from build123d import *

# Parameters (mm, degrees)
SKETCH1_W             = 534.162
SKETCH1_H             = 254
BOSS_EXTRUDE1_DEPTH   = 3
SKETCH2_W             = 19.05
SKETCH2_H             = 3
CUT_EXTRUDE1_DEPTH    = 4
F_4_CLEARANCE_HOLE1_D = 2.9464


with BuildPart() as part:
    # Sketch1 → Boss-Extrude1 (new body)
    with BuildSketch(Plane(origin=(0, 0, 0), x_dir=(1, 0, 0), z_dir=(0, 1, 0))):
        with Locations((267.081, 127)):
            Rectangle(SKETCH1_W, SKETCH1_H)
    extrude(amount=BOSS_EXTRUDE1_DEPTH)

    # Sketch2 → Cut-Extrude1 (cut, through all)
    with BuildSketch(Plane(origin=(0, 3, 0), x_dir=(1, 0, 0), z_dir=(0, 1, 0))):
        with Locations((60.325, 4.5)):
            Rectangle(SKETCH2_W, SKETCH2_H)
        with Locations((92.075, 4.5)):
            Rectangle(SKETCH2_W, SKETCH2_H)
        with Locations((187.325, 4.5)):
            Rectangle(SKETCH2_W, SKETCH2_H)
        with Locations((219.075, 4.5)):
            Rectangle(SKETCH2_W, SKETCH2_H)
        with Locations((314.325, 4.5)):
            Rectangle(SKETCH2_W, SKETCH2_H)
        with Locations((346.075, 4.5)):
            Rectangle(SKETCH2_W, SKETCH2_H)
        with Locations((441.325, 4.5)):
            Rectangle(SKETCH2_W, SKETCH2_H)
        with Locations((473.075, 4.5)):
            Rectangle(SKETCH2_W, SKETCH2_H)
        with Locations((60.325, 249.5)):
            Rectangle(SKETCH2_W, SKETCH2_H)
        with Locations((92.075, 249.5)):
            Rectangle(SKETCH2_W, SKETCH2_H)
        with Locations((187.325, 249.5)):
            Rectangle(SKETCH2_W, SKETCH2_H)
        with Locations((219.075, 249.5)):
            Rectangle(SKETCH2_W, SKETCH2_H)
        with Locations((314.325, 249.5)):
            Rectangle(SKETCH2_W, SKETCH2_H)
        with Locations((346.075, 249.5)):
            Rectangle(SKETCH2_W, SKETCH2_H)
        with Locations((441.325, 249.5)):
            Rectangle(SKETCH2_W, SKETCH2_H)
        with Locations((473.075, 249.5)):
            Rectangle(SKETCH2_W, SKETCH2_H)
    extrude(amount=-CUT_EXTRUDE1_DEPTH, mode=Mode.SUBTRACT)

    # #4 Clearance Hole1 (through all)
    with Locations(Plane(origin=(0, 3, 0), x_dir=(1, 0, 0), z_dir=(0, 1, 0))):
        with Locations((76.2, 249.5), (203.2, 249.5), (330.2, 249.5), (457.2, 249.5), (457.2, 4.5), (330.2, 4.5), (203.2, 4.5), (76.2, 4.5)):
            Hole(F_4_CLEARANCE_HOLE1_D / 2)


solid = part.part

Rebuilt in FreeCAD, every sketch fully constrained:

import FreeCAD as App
import Part
import Sketcher

V = App.Vector
Q = App.Units.Quantity


def add_polygon(sketch, points):
    """Adds a closed chain of lines whose ends are joined by coincident constraints."""
    first, n = sketch.GeometryCount, len(points)
    for a, b in zip(points, points[1:] + points[:1]):
        sketch.addGeometry(Part.LineSegment(App.Vector(*a, 0), App.Vector(*b, 0)), False)
    for i in range(n):
        sketch.addConstraint(Sketcher.Constraint("Coincident", first + i, 2, first + (i + 1) % n, 1))

doc = App.newDocument("Part")
body = doc.addObject("PartDesign::Body", "Body")

# Sketch on XZ plane
sketch1 = body.newObject("Sketcher::SketchObject", "Sketch")
sketch1.AttachmentSupport = (doc.getObject("XZ_Plane"), [""])
sketch1.MapMode = "FlatFace"
add_polygon(sketch1, [(0, -254), (0, 0), (534, 0), (534, -254)])  # lines 0-3
sketch1.addConstraint([
    Sketcher.Constraint("Vertical", 0),
    Sketcher.Constraint("Horizontal", 1),
    Sketcher.Constraint("Vertical", 2),
    Sketcher.Constraint("Horizontal", 3),
    Sketcher.Constraint("Coincident", 0, 2, -1, 1),
    Sketcher.Constraint("DistanceY", 0, 1, 0, 2, Q("10 in")),
    Sketcher.Constraint("DistanceX", 1, 1, 1, 2, Q("21.03 in")),
])
pad1 = body.newObject("PartDesign::Pad", "Pad")
pad1.Profile = sketch1
pad1.Length = 3
pad1.Reversed = True

# Sketch on XZ plane
sketch2 = body.newObject("Sketcher::SketchObject", "Sketch001")
sketch2.AttachmentSupport = (doc.getObject("XZ_Plane"), [""])
sketch2.MapMode = "FlatFace"
sketch2.AttachmentOffset = App.Placement(V(0, 0, -3), App.Rotation())
add_polygon(sketch2, [(50.8, -6), (50.8, -3), (69.8, -3), (69.8, -6)])  # lines 0-3
add_polygon(sketch2, [(82.5, -6), (82.5, -3), (101.6, -3), (101.6, -6)])  # lines 4-7
add_polygon(sketch2, [(177.8, -6), (177.8, -3), (196.8, -3), (196.8, -6)])  # lines 8-11
add_polygon(sketch2, [(209.6, -6), (209.6, -3), (228.6, -3), (228.6, -6)])  # lines 12-15
add_polygon(sketch2, [(304.8, -6), (304.8, -3), (323.9, -3), (323.9, -6)])  # lines 16-19
add_polygon(sketch2, [(336.6, -6), (336.6, -3), (355.6, -3), (355.6, -6)])  # lines 20-23
add_polygon(sketch2, [(431.8, -6), (431.8, -3), (450.9, -3), (450.9, -6)])  # lines 24-27
add_polygon(sketch2, [(463.6, -6), (463.6, -3), (482.6, -3), (482.6, -6)])  # lines 28-31
add_polygon(sketch2, [(50.8, -251), (50.8, -248), (69.8, -248), (69.8, -251)])  # lines 32-35
add_polygon(sketch2, [(82.5, -251), (82.5, -248), (101.6, -248), (101.6, -251)])  # lines 36-39
add_polygon(sketch2, [(177.8, -251), (177.8, -248), (196.8, -248), (196.8, -251)])  # lines 40-43
add_polygon(sketch2, [(209.6, -251), (209.6, -248), (228.6, -248), (228.6, -251)])  # lines 44-47
add_polygon(sketch2, [(304.8, -251), (304.8, -248), (323.9, -248), (323.9, -251)])  # lines 48-51
add_polygon(sketch2, [(336.6, -251), (336.6, -248), (355.6, -248), (355.6, -251)])  # lines 52-55
add_polygon(sketch2, [(431.8, -251), (431.8, -248), (450.9, -248), (450.9, -251)])  # lines 56-59
add_polygon(sketch2, [(463.6, -251), (463.6, -248), (482.6, -248), (482.6, -251)])  # lines 60-63
sketch2.addConstraint([
    Sketcher.Constraint("Vertical", 0),
    Sketcher.Constraint("Horizontal", 1),
    Sketcher.Constraint("Vertical", 2),
    Sketcher.Constraint("Horizontal", 3),
    Sketcher.Constraint("Vertical", 4),
    Sketcher.Constraint("Horizontal", 5),
    Sketcher.Constraint("Vertical", 6),
    Sketcher.Constraint("Horizontal", 7),
    Sketcher.Constraint("Vertical", 8),
    Sketcher.Constraint("Horizontal", 9),
    Sketcher.Constraint("Vertical", 10),
    Sketcher.Constraint("Horizontal", 11),
    Sketcher.Constraint("Vertical", 12),
    Sketcher.Constraint("Horizontal", 13),
    Sketcher.Constraint("Vertical", 14),
    Sketcher.Constraint("Horizontal", 15),
    Sketcher.Constraint("Vertical", 16),
    Sketcher.Constraint("Horizontal", 17),
    Sketcher.Constraint("Vertical", 18),
    Sketcher.Constraint("Horizontal", 19),
    Sketcher.Constraint("Vertical", 20),
    Sketcher.Constraint("Horizontal", 21),
    Sketcher.Constraint("Vertical", 22),
    Sketcher.Constraint("Horizontal", 23),
    Sketcher.Constraint("Vertical", 24),
    Sketcher.Constraint("Horizontal", 25),
    Sketcher.Constraint("Vertical", 26),
    Sketcher.Constraint("Horizontal", 27),
    Sketcher.Constraint("Vertical", 28),
    Sketcher.Constraint("Horizontal", 29),
    Sketcher.Constraint("Vertical", 30),
    Sketcher.Constraint("Horizontal", 31),
    Sketcher.Constraint("Vertical", 32),
    Sketcher.Constraint("Horizontal", 33),
    Sketcher.Constraint("Vertical", 34),
    Sketcher.Constraint("Horizontal", 35),
    Sketcher.Constraint("Vertical", 36),
    Sketcher.Constraint("Horizontal", 37),
    Sketcher.Constraint("Vertical", 38),
    Sketcher.Constraint("Horizontal", 39),
    Sketcher.Constraint("Vertical", 40),
    Sketcher.Constraint("Horizontal", 41),
    Sketcher.Constraint("Vertical", 42),
    Sketcher.Constraint("Horizontal", 43),
    Sketcher.Constraint("Vertical", 44),
    Sketcher.Constraint("Horizontal", 45),
    Sketcher.Constraint("Vertical", 46),
    Sketcher.Constraint("Horizontal", 47),
    Sketcher.Constraint("Vertical", 48),
    Sketcher.Constraint("Horizontal", 49),
    Sketcher.Constraint("Vertical", 50),
    Sketcher.Constraint("Horizontal", 51),
    Sketcher.Constraint("Vertical", 52),
    Sketcher.Constraint("Horizontal", 53),
    Sketcher.Constraint("Vertical", 54),
    Sketcher.Constraint("Horizontal", 55),
    Sketcher.Constraint("Vertical", 56),
    Sketcher.Constraint("Horizontal", 57),
    Sketcher.Constraint("Vertical", 58),
    Sketcher.Constraint("Horizontal", 59),
    Sketcher.Constraint("Vertical", 60),
    Sketcher.Constraint("Horizontal", 61),
    Sketcher.Constraint("Vertical", 62),
    Sketcher.Constraint("Horizontal", 63),
    Sketcher.Constraint("Horizontal", 1, 2, 4, 2),
    Sketcher.Constraint("Horizontal", 3, 2, 6, 2),
    Sketcher.Constraint("Horizontal", 5, 2, 8, 2),
    Sketcher.Constraint("Horizontal", 7, 2, 10, 2),
    Sketcher.Constraint("Horizontal", 9, 2, 12, 2),
    Sketcher.Constraint("Horizontal", 11, 2, 14, 2),
    Sketcher.Constraint("Horizontal", 13, 2, 16, 2),
    Sketcher.Constraint("Horizontal", 15, 2, 18, 2),
    Sketcher.Constraint("Horizontal", 17, 2, 20, 2),
    Sketcher.Constraint("Horizontal", 19, 2, 22, 2),
    Sketcher.Constraint("Horizontal", 21, 2, 24, 2),
    Sketcher.Constraint("Horizontal", 23, 2, 26, 2),
    Sketcher.Constraint("Horizontal", 25, 2, 28, 2),
    Sketcher.Constraint("Horizontal", 27, 2, 30, 2),
    Sketcher.Constraint("Horizontal", 33, 2, 36, 2),
    Sketcher.Constraint("Horizontal", 35, 2, 38, 2),
    Sketcher.Constraint("Horizontal", 37, 2, 40, 2),
    Sketcher.Constraint("Horizontal", 39, 2, 42, 2),
    Sketcher.Constraint("Horizontal", 41, 2, 44, 2),
    Sketcher.Constraint("Horizontal", 43, 2, 46, 2),
    Sketcher.Constraint("Horizontal", 45, 2, 48, 2),
    Sketcher.Constraint("Horizontal", 47, 2, 50, 2),
    Sketcher.Constraint("Horizontal", 49, 2, 52, 2),
    Sketcher.Constraint("Horizontal", 51, 2, 54, 2),
    Sketcher.Constraint("Horizontal", 53, 2, 56, 2),
    Sketcher.Constraint("Horizontal", 55, 2, 58, 2),
    Sketcher.Constraint("Horizontal", 57, 2, 60, 2),
    Sketcher.Constraint("Horizontal", 59, 2, 62, 2),
    Sketcher.Constraint("Vertical", 3, 2, 32, 2),
    Sketcher.Constraint("Vertical", 2, 2, 33, 2),
    Sketcher.Constraint("Vertical", 7, 2, 36, 2),
    Sketcher.Constraint("Vertical", 6, 2, 37, 2),
    Sketcher.Constraint("Vertical", 11, 2, 40, 2),
    Sketcher.Constraint("Vertical", 10, 2, 41, 2),
    Sketcher.Constraint("Vertical", 15, 2, 44, 2),
    Sketcher.Constraint("Vertical", 14, 2, 45, 2),
    Sketcher.Constraint("Vertical", 19, 2, 48, 2),
    Sketcher.Constraint("Vertical", 18, 2, 49, 2),
    Sketcher.Constraint("Vertical", 23, 2, 52, 2),
    Sketcher.Constraint("Vertical", 22, 2, 53, 2),
    Sketcher.Constraint("Vertical", 27, 2, 56, 2),
    Sketcher.Constraint("Vertical", 26, 2, 57, 2),
    Sketcher.Constraint("Vertical", 31, 2, 60, 2),
    Sketcher.Constraint("Vertical", 30, 2, 61, 2),
    Sketcher.Constraint("Equal", 3, 5),
    Sketcher.Constraint("Equal", 7, 9),
    Sketcher.Constraint("Equal", 11, 13),
    Sketcher.Constraint("Equal", 15, 17),
    Sketcher.Constraint("Equal", 19, 21),
    Sketcher.Constraint("Equal", 23, 25),
    Sketcher.Constraint("Equal", 27, 29),
    Sketcher.Constraint("Equal", 30, 32),
    Sketcher.Constraint("DistanceX", -1, 1, 0, 2, Q("2 in")),
    Sketcher.Constraint("DistanceX", -1, 1, 5, 2, Q("4 in")),
    Sketcher.Constraint("DistanceX", -1, 1, 8, 2, Q("7 in")),
    Sketcher.Constraint("DistanceX", -1, 1, 13, 2, Q("9 in")),
    Sketcher.Constraint("DistanceX", -1, 1, 16, 2, Q("12 in")),
    Sketcher.Constraint("DistanceX", -1, 1, 21, 2, Q("14 in")),
    Sketcher.Constraint("DistanceX", -1, 1, 24, 2, Q("17 in")),
    Sketcher.Constraint("DistanceX", -1, 1, 29, 2, Q("19 in")),
    Sketcher.Constraint("DistanceX", 1, 1, 1, 2, Q("0.75 in")),
    Sketcher.Constraint("DistanceY", 0, 1, 0, 2, 3.0),
    Sketcher.Constraint("DistanceY", 0, 2, -1, 1, 3.0),
    Sketcher.Constraint("DistanceY", 32, 2, -1, 1, 248.0),
])
pocket1 = body.newObject("PartDesign::Pocket", "Pocket")
pocket1.Profile = sketch2
pocket1.Type = "ThroughAll"
pocket1.Reversed = True

# Sketch on XZ plane
sketch3 = body.newObject("Sketcher::SketchObject", "Sketch002")
sketch3.AttachmentSupport = (doc.getObject("XZ_Plane"), [""])
sketch3.MapMode = "FlatFace"
sketch3.AttachmentOffset = App.Placement(V(0, 0, -3), App.Rotation())
sketch3.addGeometry([
    Part.Circle(V(76.2, -249.5, 0), V(0, 0, 1), 1.5),  # 0
    Part.Circle(V(203.2, -249.5, 0), V(0, 0, 1), 1.5),  # 1
    Part.Circle(V(330.2, -249.5, 0), V(0, 0, 1), 1.5),  # 2
    Part.Circle(V(457.2, -249.5, 0), V(0, 0, 1), 1.5),  # 3
    Part.Circle(V(457.2, -4.5, 0), V(0, 0, 1), 1.5),  # 4
    Part.Circle(V(330.2, -4.5, 0), V(0, 0, 1), 1.5),  # 5
    Part.Circle(V(203.2, -4.5, 0), V(0, 0, 1), 1.5),  # 6
    Part.Circle(V(76.2, -4.5, 0), V(0, 0, 1), 1.5),  # 7
], False)
sketch3.addConstraint([
    Sketcher.Constraint("Equal", 0, 1),
    Sketcher.Constraint("Equal", 1, 2),
    Sketcher.Constraint("Equal", 2, 3),
    Sketcher.Constraint("Equal", 3, 4),
    Sketcher.Constraint("Equal", 4, 5),
    Sketcher.Constraint("Equal", 5, 6),
    Sketcher.Constraint("Equal", 6, 7),
    Sketcher.Constraint("Horizontal", 0, 3, 1, 3),
    Sketcher.Constraint("Horizontal", 1, 3, 2, 3),
    Sketcher.Constraint("Horizontal", 2, 3, 3, 3),
    Sketcher.Constraint("Horizontal", 4, 3, 5, 3),
    Sketcher.Constraint("Horizontal", 5, 3, 6, 3),
    Sketcher.Constraint("Horizontal", 6, 3, 7, 3),
    Sketcher.Constraint("Vertical", 3, 3, 4, 3),
    Sketcher.Constraint("Vertical", 2, 3, 5, 3),
    Sketcher.Constraint("Vertical", 1, 3, 6, 3),
    Sketcher.Constraint("Vertical", 0, 3, 7, 3),
    Sketcher.Constraint("Diameter", 0, Q("0.116 in")),
    Sketcher.Constraint("DistanceX", -1, 1, 0, 3, Q("3 in")),
    Sketcher.Constraint("DistanceX", -1, 1, 1, 3, Q("8 in")),
    Sketcher.Constraint("DistanceX", -1, 1, 2, 3, Q("13 in")),
    Sketcher.Constraint("DistanceX", -1, 1, 3, 3, Q("18 in")),
    Sketcher.Constraint("DistanceY", 0, 3, -1, 1, 249.5),
    Sketcher.Constraint("DistanceY", 4, 3, -1, 1, 4.5),
])
doc.recompute()
hole = body.newObject("PartDesign::Hole", "Hole")
hole.Profile = sketch3
hole.ThreadType = "None"
hole.Diameter = Q("0.116 in")
hole.DepthType = "ThroughAll"
hole.Reversed = True

doc.recompute()
